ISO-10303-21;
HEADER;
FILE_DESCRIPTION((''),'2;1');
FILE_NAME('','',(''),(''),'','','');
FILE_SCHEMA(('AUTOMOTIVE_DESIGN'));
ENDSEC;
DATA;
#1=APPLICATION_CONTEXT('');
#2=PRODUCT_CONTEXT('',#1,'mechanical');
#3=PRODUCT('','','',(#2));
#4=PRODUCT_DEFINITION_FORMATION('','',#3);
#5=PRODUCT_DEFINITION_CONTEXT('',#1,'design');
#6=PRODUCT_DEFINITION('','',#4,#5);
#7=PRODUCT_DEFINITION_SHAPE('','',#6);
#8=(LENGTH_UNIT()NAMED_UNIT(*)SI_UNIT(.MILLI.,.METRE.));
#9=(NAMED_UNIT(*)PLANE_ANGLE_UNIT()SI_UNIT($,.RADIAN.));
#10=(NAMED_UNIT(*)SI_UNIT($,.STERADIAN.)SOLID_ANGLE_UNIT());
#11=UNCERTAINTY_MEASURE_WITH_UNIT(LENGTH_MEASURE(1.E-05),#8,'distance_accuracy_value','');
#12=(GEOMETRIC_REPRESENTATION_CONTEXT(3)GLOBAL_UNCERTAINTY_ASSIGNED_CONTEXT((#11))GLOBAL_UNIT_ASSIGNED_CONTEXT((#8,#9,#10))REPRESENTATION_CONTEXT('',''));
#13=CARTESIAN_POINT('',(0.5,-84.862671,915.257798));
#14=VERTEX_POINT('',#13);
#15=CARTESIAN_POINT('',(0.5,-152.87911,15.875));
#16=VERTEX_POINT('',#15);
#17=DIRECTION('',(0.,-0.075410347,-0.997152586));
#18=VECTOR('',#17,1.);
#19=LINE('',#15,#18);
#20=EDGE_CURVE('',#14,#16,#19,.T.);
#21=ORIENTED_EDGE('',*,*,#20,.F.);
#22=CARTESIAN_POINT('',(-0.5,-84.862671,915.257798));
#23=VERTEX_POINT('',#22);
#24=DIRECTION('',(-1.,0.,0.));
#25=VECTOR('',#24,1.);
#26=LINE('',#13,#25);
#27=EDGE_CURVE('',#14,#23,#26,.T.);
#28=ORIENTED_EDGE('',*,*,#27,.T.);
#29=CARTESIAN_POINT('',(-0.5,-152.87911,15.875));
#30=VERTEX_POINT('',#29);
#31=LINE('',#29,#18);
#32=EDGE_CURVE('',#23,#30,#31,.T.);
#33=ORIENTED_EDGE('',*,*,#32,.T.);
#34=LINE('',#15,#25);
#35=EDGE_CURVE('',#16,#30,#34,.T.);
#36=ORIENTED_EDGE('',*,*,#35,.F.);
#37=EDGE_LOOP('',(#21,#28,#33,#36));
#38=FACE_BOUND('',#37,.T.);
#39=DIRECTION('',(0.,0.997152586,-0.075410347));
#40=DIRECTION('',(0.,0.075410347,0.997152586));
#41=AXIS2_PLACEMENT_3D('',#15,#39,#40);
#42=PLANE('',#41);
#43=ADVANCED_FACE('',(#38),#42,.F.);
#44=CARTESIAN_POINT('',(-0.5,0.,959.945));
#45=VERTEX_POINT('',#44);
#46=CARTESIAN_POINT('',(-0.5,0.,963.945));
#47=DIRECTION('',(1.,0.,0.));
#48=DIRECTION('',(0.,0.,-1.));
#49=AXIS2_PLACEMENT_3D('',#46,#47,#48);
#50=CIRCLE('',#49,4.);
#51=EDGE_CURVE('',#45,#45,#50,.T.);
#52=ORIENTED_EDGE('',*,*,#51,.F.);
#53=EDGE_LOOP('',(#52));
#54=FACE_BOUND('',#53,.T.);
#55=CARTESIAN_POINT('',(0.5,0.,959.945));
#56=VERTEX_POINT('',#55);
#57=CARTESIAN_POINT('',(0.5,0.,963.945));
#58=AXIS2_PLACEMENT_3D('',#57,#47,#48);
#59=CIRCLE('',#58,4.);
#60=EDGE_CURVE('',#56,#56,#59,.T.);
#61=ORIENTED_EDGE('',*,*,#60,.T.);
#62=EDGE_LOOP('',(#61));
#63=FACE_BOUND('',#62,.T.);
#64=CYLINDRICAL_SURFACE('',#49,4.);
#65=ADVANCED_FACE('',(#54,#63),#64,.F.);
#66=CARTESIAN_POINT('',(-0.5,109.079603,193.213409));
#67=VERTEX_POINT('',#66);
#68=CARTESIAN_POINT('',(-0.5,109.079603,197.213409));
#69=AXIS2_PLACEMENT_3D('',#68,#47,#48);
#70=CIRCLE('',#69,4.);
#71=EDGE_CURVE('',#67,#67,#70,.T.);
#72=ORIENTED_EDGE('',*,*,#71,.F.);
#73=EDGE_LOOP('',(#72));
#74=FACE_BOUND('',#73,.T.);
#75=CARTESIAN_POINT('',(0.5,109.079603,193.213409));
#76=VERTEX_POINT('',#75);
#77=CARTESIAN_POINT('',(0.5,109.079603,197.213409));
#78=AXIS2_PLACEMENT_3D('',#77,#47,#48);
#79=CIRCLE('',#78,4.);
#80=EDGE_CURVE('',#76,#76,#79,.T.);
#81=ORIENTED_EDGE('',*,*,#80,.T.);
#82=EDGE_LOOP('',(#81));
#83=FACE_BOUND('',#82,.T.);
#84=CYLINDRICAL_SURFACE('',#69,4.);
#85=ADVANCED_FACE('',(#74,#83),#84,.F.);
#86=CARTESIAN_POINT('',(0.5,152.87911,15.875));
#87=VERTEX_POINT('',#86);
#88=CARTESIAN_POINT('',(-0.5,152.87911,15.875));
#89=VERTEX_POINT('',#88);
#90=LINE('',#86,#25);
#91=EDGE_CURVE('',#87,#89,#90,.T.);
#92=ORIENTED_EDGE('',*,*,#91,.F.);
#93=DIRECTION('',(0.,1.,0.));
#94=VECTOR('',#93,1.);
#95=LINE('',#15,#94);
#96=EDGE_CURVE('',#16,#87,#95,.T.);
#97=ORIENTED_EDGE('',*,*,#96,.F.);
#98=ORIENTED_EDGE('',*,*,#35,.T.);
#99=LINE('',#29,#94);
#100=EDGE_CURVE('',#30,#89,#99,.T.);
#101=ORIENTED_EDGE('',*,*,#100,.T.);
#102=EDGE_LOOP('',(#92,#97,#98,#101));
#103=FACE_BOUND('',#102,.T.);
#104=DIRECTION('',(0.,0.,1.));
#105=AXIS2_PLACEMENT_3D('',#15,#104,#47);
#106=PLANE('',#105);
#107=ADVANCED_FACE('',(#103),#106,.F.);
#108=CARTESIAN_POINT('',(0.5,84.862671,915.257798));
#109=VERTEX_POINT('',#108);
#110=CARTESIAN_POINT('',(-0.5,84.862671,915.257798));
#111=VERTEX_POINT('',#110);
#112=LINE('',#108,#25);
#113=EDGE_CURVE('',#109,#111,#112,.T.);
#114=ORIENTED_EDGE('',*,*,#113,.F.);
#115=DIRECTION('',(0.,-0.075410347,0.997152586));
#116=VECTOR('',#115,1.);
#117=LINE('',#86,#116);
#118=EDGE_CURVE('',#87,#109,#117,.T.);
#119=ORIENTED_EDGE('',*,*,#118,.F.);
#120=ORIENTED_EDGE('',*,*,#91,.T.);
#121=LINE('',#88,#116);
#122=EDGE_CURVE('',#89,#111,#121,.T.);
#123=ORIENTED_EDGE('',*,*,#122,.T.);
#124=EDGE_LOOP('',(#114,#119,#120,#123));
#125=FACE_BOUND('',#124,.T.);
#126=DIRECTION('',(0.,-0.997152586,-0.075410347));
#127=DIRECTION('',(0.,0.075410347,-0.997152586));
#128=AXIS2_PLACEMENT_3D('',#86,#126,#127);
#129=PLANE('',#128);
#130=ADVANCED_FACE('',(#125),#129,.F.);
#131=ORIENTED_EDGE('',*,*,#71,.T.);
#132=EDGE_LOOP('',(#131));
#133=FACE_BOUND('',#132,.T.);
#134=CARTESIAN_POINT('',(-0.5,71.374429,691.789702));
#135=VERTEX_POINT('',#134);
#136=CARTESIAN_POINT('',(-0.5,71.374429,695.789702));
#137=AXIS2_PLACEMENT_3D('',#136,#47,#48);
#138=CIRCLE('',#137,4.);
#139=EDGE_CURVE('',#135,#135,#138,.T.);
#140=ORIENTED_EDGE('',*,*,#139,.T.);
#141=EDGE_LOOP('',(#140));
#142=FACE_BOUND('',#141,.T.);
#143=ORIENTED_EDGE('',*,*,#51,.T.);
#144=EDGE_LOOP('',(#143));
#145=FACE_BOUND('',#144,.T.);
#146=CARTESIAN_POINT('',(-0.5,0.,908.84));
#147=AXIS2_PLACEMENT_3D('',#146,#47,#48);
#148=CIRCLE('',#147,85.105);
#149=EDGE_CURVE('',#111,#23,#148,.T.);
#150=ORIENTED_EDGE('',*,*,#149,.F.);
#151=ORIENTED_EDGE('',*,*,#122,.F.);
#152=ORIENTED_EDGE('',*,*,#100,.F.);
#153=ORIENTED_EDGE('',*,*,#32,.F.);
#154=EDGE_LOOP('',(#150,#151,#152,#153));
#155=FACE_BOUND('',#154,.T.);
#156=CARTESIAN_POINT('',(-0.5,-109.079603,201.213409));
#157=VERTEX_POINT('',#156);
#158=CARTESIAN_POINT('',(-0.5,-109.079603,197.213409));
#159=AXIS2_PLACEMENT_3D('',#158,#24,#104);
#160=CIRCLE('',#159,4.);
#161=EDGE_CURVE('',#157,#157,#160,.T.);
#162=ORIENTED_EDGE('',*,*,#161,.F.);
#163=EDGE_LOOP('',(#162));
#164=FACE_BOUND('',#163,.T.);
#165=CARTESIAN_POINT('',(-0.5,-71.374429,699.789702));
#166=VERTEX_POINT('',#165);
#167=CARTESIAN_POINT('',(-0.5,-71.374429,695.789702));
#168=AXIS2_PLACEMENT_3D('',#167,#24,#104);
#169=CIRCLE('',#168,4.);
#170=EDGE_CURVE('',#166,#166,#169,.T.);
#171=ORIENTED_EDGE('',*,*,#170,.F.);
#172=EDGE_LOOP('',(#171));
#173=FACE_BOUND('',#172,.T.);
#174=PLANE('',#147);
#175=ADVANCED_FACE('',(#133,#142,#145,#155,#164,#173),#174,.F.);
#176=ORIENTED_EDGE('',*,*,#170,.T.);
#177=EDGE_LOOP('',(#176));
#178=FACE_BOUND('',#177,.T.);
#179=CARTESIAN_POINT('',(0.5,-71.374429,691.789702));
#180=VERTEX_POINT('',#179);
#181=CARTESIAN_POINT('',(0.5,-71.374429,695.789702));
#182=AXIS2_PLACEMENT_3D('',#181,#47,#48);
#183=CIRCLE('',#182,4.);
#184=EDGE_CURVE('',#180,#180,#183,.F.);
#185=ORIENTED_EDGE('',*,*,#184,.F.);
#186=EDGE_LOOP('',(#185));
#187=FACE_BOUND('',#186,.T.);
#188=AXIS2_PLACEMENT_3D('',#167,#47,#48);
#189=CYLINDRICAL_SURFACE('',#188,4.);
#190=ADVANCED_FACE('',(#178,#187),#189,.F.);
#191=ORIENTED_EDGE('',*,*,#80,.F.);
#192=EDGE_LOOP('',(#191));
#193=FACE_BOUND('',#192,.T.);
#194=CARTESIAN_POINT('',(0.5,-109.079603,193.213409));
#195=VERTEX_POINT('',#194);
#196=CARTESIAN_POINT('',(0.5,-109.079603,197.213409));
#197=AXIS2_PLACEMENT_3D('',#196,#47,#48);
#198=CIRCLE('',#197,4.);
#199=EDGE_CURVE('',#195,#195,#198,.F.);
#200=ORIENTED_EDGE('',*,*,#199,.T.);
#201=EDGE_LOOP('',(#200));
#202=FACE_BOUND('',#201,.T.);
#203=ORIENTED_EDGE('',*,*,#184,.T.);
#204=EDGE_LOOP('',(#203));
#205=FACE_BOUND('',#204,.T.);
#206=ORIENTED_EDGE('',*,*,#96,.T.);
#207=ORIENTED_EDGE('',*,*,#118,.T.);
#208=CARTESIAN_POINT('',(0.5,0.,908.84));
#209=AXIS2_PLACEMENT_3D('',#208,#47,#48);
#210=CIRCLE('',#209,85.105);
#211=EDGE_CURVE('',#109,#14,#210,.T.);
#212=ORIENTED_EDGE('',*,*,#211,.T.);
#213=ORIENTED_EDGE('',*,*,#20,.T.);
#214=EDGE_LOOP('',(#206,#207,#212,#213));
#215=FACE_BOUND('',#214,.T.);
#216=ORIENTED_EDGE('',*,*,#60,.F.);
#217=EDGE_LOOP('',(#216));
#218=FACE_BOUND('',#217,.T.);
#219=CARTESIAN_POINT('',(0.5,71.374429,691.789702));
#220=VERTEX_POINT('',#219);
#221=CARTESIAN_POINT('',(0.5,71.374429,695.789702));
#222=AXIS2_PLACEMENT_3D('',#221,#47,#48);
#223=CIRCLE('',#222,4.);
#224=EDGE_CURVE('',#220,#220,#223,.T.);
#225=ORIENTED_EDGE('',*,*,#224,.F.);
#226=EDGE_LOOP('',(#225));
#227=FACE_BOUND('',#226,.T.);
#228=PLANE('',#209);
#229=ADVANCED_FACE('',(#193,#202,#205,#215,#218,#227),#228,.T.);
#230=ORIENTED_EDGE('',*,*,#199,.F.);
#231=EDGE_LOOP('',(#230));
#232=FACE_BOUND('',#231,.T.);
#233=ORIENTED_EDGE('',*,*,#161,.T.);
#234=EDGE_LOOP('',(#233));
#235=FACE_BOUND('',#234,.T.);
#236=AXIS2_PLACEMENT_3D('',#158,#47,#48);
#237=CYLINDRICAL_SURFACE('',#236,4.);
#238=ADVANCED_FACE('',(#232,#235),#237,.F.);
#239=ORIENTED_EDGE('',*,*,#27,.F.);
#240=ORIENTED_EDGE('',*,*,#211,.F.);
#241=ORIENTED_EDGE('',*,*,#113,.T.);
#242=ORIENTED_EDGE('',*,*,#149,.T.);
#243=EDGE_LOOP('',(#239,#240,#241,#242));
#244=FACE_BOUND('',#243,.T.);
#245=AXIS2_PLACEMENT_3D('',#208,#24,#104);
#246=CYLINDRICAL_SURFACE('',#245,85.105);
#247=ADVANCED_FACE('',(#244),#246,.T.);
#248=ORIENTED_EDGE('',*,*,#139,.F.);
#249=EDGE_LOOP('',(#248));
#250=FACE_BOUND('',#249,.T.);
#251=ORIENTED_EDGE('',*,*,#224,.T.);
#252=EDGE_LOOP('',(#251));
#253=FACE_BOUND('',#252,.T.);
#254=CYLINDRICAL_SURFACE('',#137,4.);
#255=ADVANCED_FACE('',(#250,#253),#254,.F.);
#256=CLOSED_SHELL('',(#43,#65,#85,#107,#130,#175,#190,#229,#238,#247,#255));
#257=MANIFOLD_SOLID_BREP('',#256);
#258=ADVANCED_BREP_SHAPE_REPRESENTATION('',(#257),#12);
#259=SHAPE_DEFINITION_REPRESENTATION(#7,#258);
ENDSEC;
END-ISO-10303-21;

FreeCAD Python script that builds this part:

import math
import FreeCAD as App
import Part
import Sketcher
Q = App.Units.Quantity

doc = App.newDocument("Part")
body = doc.addObject("PartDesign::Body", "Body")

# Sketch on YZ plane
sketch1 = body.newObject("Sketcher::SketchObject", "Sketch")
sketch1.AttachmentSupport = (doc.getObject("YZ_Plane"), [""])
sketch1.MapMode = "FlatFace"
sketch1.addGeometry([
    Part.LineSegment(App.Vector(-84.862671, 915.257798, 0), App.Vector(-152.87911, 15.875, 0)),
    Part.LineSegment(App.Vector(-152.87911, 15.875, 0), App.Vector(152.87911, 15.875, 0)),
    Part.LineSegment(App.Vector(152.87911, 15.875, 0), App.Vector(84.862671, 915.257798, 0)),
    Part.ArcOfCircle(Part.Circle(App.Vector(0, 908.84, 0), App.Vector(0, 0, 1), 85.105), math.radians(4.3248), math.radians(175.6752)),
], False)
sketch1.addConstraint([
    Sketcher.Constraint("Coincident", 0, 2, 1, 1),
    Sketcher.Constraint("Coincident", 1, 2, 2, 1),
    Sketcher.Constraint("Tangent", 2, 2, 3, 1),
    Sketcher.Constraint("Tangent", 3, 2, 0, 1),
    Sketcher.Constraint("Horizontal", 1),
    Sketcher.Constraint("PointOnObject", 3, 3, -2),
    Sketcher.Constraint("Equal", 0, 2),
    Sketcher.Constraint("Radius", 3, Q("85.105 mm")),
    Sketcher.Constraint("DistanceY", -1, 1, 3, 3, Q("908.84 mm")),
    Sketcher.Constraint("DistanceY", -1, 1, 0, 2, Q("15.875 mm")),
    Sketcher.Constraint("DistanceX", 1, 1, 1, 2, Q("305.758221 mm")),
])
pad1 = body.newObject("PartDesign::Pad", "Pad")
pad1.Profile = sketch1
pad1.Length = 1
pad1.Midplane = True

# Sketch on YZ plane
sketch2 = body.newObject("Sketcher::SketchObject", "Sketch001")
sketch2.AttachmentSupport = (doc.getObject("YZ_Plane"), [""])
sketch2.MapMode = "FlatFace"
sketch2.AttachmentOffset = App.Placement(App.Vector(0, 0, 0.5), App.Rotation())
sketch2.addGeometry([
    Part.Circle(App.Vector(71.374429, 695.789702, 0), App.Vector(0, 0, 1), 4),  # 0
    Part.Circle(App.Vector(109.079603, 197.213409, 0), App.Vector(0, 0, 1), 4),  # 1
    Part.Circle(App.Vector(0, 963.945, 0), App.Vector(0, 0, 1), 4),  # 2
    Part.Circle(App.Vector(-71.374429, 695.789702, 0), App.Vector(0, 0, 1), 4),  # 3
    Part.Circle(App.Vector(-109.079603, 197.213409, 0), App.Vector(0, 0, 1), 4),  # 4
], False)
sketch2.addConstraint([
    Sketcher.Constraint("Equal", 0, 1),
    Sketcher.Constraint("Equal", 1, 2),
    Sketcher.Constraint("Equal", 2, 3),
    Sketcher.Constraint("Equal", 3, 4),
    Sketcher.Constraint("Symmetric", 0, 3, 3, 3, -2),
    Sketcher.Constraint("Symmetric", 1, 3, 4, 3, -2),
    Sketcher.Constraint("PointOnObject", 2, 3, -2),
    Sketcher.Constraint("Diameter", 0, Q("8 mm")),
    Sketcher.Constraint("DistanceY", -1, 1, 2, 3, Q("963.945 mm")),
    Sketcher.Constraint("DistanceX", -1, 1, 0, 3, Q("71.374429 mm")),
    Sketcher.Constraint("DistanceY", -1, 1, 1, 3, Q("197.213409 mm")),
    Sketcher.Constraint("DistanceY", -1, 1, 0, 3, Q("695.789702 mm")),
    Sketcher.Constraint("DistanceX", -1, 1, 1, 3, Q("109.079603 mm")),
])
pocket1 = body.newObject("PartDesign::Pocket", "Pocket")
pocket1.Profile = sketch2
pocket1.Type = "ThroughAll"
pocket1.Midplane = True

doc.recompute()
